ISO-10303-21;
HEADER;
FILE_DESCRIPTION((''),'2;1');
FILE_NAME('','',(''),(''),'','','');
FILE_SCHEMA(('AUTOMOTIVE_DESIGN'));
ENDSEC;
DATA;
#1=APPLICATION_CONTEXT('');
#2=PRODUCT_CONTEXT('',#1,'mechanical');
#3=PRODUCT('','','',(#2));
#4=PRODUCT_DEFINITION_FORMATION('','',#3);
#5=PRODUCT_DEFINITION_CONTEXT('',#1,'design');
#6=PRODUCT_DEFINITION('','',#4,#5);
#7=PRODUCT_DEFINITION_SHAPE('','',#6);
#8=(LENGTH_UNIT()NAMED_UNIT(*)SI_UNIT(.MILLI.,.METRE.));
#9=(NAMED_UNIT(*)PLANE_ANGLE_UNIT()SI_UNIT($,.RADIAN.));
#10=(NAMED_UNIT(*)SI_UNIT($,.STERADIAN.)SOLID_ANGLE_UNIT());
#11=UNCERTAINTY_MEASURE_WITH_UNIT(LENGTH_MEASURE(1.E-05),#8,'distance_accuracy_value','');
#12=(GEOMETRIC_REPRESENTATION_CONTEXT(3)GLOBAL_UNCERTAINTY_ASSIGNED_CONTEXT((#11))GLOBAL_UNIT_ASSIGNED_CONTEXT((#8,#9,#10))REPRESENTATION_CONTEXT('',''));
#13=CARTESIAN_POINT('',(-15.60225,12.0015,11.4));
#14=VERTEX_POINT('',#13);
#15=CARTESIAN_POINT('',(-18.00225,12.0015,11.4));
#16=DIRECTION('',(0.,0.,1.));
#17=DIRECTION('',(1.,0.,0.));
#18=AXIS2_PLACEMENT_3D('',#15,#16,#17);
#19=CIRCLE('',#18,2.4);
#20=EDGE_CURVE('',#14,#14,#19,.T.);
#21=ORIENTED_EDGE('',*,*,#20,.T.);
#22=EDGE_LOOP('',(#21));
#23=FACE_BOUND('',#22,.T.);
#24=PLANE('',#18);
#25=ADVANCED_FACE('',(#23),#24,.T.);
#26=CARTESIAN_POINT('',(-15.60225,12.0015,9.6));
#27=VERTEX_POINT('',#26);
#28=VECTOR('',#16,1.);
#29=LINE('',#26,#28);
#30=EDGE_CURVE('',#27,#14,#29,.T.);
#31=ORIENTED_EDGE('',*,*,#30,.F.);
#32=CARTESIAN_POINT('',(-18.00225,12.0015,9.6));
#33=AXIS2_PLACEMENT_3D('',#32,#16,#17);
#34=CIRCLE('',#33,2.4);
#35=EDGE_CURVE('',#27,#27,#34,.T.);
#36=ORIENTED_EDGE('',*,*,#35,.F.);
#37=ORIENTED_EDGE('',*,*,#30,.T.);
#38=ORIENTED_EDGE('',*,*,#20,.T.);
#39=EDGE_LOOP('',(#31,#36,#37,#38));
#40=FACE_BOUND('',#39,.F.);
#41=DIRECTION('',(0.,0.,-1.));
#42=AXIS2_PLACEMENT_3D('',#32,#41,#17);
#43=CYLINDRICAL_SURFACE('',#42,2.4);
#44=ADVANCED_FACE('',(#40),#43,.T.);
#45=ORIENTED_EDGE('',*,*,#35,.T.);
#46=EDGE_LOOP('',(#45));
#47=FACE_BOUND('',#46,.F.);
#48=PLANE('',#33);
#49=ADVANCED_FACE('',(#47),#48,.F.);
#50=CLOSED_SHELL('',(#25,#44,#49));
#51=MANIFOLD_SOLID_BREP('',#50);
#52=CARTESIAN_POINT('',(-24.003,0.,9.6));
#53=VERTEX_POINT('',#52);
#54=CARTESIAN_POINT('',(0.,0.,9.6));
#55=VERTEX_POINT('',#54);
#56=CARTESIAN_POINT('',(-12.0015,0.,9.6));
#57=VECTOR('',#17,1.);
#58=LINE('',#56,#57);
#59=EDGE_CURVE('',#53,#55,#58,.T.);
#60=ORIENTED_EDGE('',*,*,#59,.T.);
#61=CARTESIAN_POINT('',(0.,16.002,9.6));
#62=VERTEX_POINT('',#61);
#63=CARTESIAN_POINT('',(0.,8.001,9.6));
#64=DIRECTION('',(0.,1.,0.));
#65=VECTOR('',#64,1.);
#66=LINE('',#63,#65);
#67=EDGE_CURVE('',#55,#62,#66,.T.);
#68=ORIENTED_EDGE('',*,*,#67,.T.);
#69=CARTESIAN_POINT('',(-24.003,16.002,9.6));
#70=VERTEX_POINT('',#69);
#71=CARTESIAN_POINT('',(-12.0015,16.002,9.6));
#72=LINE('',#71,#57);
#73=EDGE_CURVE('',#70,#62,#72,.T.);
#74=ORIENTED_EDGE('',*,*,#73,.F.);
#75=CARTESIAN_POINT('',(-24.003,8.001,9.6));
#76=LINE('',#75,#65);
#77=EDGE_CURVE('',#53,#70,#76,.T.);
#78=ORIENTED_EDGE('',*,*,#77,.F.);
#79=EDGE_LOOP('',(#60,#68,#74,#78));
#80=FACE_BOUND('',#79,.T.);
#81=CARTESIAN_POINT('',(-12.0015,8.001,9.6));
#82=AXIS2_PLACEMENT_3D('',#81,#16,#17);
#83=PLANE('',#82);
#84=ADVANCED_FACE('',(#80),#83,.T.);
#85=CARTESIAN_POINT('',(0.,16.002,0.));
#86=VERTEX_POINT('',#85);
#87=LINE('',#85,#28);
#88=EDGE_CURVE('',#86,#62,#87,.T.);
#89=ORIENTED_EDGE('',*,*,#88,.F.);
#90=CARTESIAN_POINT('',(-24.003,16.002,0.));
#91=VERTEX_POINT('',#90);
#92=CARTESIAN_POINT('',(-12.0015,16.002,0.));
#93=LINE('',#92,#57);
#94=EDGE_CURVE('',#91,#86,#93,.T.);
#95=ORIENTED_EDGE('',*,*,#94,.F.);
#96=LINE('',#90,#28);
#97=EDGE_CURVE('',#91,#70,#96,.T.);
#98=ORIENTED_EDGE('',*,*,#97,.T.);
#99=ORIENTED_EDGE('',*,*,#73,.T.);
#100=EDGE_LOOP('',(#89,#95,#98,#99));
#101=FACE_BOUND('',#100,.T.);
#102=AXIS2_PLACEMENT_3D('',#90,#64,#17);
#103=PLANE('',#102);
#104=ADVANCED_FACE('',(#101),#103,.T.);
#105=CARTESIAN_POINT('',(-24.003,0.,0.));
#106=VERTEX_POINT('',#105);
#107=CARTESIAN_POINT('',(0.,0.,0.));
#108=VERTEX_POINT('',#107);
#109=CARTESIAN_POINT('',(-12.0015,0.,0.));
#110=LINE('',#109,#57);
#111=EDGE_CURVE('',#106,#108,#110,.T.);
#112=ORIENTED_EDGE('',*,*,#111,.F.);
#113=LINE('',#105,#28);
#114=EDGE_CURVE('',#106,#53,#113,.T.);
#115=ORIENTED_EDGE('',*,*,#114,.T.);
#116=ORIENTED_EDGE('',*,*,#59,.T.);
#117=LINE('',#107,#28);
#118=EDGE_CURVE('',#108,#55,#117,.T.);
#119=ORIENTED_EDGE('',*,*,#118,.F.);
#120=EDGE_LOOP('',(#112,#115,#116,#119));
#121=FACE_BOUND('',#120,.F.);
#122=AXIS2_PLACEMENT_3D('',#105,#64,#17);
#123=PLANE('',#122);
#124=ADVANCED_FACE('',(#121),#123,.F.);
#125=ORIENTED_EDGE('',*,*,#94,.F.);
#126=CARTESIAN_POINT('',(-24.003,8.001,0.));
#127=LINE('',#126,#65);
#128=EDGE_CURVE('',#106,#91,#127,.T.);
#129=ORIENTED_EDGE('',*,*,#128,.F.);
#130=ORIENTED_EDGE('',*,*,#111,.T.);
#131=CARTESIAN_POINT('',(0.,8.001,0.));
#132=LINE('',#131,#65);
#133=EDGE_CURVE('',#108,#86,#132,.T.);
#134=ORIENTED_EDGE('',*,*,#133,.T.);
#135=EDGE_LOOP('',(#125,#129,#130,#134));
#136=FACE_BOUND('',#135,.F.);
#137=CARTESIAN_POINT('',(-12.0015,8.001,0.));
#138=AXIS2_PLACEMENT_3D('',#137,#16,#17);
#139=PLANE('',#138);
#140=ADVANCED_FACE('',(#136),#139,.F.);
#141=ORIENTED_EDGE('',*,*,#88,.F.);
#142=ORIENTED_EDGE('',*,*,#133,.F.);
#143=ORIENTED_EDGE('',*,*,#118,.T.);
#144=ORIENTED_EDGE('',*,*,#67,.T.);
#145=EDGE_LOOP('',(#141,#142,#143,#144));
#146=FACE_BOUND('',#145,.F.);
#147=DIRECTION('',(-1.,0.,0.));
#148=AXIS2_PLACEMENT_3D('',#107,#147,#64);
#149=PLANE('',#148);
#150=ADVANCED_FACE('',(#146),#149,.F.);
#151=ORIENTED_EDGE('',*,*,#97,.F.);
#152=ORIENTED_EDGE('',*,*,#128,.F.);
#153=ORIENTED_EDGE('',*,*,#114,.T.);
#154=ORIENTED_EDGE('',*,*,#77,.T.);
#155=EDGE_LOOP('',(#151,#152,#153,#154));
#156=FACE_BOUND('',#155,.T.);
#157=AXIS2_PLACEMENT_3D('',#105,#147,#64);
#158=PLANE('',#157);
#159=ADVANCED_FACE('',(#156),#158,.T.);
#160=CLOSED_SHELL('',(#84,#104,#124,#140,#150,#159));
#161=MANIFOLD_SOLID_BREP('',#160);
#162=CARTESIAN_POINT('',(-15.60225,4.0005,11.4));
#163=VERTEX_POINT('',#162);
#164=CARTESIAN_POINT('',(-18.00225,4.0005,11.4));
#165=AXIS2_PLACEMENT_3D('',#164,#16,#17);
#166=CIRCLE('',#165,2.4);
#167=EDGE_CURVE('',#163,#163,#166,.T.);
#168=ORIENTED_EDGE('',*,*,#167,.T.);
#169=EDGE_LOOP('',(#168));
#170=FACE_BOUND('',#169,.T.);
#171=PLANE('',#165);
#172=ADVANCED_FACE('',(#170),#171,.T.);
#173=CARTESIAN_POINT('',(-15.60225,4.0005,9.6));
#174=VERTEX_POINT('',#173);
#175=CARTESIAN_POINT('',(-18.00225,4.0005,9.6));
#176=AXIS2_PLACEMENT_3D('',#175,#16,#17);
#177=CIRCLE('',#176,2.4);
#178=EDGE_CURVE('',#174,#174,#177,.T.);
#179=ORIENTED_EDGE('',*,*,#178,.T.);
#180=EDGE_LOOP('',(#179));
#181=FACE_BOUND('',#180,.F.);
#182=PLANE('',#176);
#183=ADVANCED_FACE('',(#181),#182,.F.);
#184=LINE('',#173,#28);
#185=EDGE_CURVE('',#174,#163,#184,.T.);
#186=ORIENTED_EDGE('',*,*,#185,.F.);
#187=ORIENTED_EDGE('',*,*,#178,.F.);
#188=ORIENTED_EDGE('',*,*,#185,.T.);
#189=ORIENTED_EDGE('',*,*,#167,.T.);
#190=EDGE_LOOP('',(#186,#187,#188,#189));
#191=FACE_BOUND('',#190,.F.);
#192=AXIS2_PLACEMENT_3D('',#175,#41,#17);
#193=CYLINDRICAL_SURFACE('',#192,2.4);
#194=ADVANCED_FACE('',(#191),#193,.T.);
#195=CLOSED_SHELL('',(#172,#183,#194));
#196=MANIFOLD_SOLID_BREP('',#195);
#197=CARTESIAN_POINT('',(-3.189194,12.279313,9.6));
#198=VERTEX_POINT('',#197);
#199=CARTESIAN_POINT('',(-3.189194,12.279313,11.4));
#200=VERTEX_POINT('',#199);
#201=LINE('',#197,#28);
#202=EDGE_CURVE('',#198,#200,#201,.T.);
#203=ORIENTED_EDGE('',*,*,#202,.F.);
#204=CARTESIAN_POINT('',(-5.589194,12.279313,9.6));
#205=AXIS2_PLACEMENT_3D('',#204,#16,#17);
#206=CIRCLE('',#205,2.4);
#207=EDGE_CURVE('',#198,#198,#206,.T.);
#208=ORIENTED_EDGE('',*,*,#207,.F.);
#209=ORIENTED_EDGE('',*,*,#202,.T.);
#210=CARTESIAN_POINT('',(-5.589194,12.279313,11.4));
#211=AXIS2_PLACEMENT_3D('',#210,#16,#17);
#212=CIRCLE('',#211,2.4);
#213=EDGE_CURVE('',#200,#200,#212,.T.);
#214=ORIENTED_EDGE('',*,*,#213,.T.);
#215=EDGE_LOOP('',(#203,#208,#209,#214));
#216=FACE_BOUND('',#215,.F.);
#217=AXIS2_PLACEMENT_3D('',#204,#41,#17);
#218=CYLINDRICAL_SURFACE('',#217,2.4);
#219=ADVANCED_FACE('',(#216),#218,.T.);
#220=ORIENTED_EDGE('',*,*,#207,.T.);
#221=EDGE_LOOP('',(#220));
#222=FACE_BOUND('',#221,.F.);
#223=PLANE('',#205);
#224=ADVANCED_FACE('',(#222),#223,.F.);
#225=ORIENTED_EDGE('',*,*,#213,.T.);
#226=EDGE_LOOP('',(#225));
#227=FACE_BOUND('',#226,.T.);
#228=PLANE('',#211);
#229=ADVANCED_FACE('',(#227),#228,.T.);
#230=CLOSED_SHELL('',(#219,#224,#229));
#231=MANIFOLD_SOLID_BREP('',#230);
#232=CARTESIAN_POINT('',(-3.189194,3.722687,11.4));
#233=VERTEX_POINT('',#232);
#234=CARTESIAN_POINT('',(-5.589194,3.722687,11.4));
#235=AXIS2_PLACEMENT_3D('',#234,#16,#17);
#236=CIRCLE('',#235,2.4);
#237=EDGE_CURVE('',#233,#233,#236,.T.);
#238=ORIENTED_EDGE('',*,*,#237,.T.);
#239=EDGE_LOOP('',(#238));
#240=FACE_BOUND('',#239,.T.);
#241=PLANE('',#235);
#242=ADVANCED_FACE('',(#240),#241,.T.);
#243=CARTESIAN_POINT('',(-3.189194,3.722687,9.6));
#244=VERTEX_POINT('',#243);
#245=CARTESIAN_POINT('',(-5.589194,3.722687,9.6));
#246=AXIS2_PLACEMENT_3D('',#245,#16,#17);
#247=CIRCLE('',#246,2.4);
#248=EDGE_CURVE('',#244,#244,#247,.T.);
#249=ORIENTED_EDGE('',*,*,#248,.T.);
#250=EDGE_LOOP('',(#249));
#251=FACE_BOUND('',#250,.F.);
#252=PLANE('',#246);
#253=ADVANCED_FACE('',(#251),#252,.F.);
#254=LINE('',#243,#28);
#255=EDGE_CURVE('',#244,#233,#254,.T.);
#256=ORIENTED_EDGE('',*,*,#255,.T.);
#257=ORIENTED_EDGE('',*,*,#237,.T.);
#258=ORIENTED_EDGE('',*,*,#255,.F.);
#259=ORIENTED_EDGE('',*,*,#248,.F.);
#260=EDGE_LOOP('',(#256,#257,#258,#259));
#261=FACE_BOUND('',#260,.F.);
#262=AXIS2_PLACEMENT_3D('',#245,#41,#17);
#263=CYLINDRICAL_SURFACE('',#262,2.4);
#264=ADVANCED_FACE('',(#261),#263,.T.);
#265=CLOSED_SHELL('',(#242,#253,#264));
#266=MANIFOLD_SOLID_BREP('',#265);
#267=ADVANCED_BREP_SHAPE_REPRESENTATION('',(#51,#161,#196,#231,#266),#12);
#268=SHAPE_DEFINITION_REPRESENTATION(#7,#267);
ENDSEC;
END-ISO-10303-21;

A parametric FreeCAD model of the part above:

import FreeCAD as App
import Part
import Sketcher

V = App.Vector


def add_polygon(sketch, points):
    """Adds a closed chain of lines whose ends are joined by coincident constraints."""
    first, n = sketch.GeometryCount, len(points)
    for a, b in zip(points, points[1:] + points[:1]):
        sketch.addGeometry(Part.LineSegment(App.Vector(*a, 0), App.Vector(*b, 0)), False)
    for i in range(n):
        sketch.addConstraint(Sketcher.Constraint("Coincident", first + i, 2, first + (i + 1) % n, 1))

doc = App.newDocument("Part")
body = doc.addObject("PartDesign::Body", "Body")

# Sketch on XY plane
sketch1 = body.newObject("Sketcher::SketchObject", "Sketch")
sketch1.AttachmentSupport = (doc.getObject("XY_Plane"), [""])
sketch1.MapMode = "FlatFace"
add_polygon(sketch1, [(-24, 16), (-24, 0), (0, 0), (0, 16)])  # lines 0-3
sketch1.addConstraint([
    Sketcher.Constraint("Vertical", 0),
    Sketcher.Constraint("Horizontal", 1),
    Sketcher.Constraint("Vertical", 2),
    Sketcher.Constraint("Horizontal", 3),
    Sketcher.Constraint("Coincident", 1, 2, -1, 1),
    Sketcher.Constraint("DistanceX", 1, 1, 1, 2, 24.003),
    Sketcher.Constraint("DistanceY", 0, 2, 0, 1, 16.002),
])
pad1 = body.newObject("PartDesign::Pad", "Pad")
pad1.Profile = sketch1
pad1.Length = 9.6
body2 = doc.addObject("PartDesign::Body", "Body001")
body2.AllowCompound = True

# Sketch on XY plane
sketch2 = body2.newObject("Sketcher::SketchObject", "Sketch001")
sketch2.AttachmentSupport = (doc.getObject("XY_Plane001"), [""])
sketch2.MapMode = "FlatFace"
sketch2.AttachmentOffset = App.Placement(V(0, 0, 9.6), App.Rotation())
sketch2.addGeometry([
    Part.Circle(V(-18, 12, 0), V(0, 0, 1), 2.4),
    Part.Circle(V(-5.6, 12.3, 0), V(0, 0, 1), 2.4),
    Part.Circle(V(-18, 4, 0), V(0, 0, 1), 2.4),
    Part.Circle(V(-5.6, 3.7, 0), V(0, 0, 1), 2.4),
], False)
sketch2.addConstraint([
    Sketcher.Constraint("Equal", 0, 1),
    Sketcher.Constraint("Equal", 1, 2),
    Sketcher.Constraint("Equal", 2, 3),
    Sketcher.Constraint("Vertical", 0, 3, 2, 3),
    Sketcher.Constraint("Vertical", 1, 3, 3, 3),
    Sketcher.Constraint("Diameter", 0, 4.8),
    Sketcher.Constraint("DistanceY", 2, 3, 0, 3, 8.001),
    Sketcher.Constraint("DistanceY", -1, 1, 0, 3, 12.0015),
    Sketcher.Constraint("DistanceX", 0, 3, -1, 1, 18.00225),
    Sketcher.Constraint("DistanceX", 1, 3, -1, 1, 5.589194),
    Sketcher.Constraint("DistanceY", -1, 1, 1, 3, 12.279313),
    Sketcher.Constraint("DistanceY", -1, 1, 3, 3, 3.722687),
])
pad2 = body2.newObject("PartDesign::Pad", "Pad001")
pad2.Profile = sketch2
pad2.Length = 1.8

doc.recompute()
